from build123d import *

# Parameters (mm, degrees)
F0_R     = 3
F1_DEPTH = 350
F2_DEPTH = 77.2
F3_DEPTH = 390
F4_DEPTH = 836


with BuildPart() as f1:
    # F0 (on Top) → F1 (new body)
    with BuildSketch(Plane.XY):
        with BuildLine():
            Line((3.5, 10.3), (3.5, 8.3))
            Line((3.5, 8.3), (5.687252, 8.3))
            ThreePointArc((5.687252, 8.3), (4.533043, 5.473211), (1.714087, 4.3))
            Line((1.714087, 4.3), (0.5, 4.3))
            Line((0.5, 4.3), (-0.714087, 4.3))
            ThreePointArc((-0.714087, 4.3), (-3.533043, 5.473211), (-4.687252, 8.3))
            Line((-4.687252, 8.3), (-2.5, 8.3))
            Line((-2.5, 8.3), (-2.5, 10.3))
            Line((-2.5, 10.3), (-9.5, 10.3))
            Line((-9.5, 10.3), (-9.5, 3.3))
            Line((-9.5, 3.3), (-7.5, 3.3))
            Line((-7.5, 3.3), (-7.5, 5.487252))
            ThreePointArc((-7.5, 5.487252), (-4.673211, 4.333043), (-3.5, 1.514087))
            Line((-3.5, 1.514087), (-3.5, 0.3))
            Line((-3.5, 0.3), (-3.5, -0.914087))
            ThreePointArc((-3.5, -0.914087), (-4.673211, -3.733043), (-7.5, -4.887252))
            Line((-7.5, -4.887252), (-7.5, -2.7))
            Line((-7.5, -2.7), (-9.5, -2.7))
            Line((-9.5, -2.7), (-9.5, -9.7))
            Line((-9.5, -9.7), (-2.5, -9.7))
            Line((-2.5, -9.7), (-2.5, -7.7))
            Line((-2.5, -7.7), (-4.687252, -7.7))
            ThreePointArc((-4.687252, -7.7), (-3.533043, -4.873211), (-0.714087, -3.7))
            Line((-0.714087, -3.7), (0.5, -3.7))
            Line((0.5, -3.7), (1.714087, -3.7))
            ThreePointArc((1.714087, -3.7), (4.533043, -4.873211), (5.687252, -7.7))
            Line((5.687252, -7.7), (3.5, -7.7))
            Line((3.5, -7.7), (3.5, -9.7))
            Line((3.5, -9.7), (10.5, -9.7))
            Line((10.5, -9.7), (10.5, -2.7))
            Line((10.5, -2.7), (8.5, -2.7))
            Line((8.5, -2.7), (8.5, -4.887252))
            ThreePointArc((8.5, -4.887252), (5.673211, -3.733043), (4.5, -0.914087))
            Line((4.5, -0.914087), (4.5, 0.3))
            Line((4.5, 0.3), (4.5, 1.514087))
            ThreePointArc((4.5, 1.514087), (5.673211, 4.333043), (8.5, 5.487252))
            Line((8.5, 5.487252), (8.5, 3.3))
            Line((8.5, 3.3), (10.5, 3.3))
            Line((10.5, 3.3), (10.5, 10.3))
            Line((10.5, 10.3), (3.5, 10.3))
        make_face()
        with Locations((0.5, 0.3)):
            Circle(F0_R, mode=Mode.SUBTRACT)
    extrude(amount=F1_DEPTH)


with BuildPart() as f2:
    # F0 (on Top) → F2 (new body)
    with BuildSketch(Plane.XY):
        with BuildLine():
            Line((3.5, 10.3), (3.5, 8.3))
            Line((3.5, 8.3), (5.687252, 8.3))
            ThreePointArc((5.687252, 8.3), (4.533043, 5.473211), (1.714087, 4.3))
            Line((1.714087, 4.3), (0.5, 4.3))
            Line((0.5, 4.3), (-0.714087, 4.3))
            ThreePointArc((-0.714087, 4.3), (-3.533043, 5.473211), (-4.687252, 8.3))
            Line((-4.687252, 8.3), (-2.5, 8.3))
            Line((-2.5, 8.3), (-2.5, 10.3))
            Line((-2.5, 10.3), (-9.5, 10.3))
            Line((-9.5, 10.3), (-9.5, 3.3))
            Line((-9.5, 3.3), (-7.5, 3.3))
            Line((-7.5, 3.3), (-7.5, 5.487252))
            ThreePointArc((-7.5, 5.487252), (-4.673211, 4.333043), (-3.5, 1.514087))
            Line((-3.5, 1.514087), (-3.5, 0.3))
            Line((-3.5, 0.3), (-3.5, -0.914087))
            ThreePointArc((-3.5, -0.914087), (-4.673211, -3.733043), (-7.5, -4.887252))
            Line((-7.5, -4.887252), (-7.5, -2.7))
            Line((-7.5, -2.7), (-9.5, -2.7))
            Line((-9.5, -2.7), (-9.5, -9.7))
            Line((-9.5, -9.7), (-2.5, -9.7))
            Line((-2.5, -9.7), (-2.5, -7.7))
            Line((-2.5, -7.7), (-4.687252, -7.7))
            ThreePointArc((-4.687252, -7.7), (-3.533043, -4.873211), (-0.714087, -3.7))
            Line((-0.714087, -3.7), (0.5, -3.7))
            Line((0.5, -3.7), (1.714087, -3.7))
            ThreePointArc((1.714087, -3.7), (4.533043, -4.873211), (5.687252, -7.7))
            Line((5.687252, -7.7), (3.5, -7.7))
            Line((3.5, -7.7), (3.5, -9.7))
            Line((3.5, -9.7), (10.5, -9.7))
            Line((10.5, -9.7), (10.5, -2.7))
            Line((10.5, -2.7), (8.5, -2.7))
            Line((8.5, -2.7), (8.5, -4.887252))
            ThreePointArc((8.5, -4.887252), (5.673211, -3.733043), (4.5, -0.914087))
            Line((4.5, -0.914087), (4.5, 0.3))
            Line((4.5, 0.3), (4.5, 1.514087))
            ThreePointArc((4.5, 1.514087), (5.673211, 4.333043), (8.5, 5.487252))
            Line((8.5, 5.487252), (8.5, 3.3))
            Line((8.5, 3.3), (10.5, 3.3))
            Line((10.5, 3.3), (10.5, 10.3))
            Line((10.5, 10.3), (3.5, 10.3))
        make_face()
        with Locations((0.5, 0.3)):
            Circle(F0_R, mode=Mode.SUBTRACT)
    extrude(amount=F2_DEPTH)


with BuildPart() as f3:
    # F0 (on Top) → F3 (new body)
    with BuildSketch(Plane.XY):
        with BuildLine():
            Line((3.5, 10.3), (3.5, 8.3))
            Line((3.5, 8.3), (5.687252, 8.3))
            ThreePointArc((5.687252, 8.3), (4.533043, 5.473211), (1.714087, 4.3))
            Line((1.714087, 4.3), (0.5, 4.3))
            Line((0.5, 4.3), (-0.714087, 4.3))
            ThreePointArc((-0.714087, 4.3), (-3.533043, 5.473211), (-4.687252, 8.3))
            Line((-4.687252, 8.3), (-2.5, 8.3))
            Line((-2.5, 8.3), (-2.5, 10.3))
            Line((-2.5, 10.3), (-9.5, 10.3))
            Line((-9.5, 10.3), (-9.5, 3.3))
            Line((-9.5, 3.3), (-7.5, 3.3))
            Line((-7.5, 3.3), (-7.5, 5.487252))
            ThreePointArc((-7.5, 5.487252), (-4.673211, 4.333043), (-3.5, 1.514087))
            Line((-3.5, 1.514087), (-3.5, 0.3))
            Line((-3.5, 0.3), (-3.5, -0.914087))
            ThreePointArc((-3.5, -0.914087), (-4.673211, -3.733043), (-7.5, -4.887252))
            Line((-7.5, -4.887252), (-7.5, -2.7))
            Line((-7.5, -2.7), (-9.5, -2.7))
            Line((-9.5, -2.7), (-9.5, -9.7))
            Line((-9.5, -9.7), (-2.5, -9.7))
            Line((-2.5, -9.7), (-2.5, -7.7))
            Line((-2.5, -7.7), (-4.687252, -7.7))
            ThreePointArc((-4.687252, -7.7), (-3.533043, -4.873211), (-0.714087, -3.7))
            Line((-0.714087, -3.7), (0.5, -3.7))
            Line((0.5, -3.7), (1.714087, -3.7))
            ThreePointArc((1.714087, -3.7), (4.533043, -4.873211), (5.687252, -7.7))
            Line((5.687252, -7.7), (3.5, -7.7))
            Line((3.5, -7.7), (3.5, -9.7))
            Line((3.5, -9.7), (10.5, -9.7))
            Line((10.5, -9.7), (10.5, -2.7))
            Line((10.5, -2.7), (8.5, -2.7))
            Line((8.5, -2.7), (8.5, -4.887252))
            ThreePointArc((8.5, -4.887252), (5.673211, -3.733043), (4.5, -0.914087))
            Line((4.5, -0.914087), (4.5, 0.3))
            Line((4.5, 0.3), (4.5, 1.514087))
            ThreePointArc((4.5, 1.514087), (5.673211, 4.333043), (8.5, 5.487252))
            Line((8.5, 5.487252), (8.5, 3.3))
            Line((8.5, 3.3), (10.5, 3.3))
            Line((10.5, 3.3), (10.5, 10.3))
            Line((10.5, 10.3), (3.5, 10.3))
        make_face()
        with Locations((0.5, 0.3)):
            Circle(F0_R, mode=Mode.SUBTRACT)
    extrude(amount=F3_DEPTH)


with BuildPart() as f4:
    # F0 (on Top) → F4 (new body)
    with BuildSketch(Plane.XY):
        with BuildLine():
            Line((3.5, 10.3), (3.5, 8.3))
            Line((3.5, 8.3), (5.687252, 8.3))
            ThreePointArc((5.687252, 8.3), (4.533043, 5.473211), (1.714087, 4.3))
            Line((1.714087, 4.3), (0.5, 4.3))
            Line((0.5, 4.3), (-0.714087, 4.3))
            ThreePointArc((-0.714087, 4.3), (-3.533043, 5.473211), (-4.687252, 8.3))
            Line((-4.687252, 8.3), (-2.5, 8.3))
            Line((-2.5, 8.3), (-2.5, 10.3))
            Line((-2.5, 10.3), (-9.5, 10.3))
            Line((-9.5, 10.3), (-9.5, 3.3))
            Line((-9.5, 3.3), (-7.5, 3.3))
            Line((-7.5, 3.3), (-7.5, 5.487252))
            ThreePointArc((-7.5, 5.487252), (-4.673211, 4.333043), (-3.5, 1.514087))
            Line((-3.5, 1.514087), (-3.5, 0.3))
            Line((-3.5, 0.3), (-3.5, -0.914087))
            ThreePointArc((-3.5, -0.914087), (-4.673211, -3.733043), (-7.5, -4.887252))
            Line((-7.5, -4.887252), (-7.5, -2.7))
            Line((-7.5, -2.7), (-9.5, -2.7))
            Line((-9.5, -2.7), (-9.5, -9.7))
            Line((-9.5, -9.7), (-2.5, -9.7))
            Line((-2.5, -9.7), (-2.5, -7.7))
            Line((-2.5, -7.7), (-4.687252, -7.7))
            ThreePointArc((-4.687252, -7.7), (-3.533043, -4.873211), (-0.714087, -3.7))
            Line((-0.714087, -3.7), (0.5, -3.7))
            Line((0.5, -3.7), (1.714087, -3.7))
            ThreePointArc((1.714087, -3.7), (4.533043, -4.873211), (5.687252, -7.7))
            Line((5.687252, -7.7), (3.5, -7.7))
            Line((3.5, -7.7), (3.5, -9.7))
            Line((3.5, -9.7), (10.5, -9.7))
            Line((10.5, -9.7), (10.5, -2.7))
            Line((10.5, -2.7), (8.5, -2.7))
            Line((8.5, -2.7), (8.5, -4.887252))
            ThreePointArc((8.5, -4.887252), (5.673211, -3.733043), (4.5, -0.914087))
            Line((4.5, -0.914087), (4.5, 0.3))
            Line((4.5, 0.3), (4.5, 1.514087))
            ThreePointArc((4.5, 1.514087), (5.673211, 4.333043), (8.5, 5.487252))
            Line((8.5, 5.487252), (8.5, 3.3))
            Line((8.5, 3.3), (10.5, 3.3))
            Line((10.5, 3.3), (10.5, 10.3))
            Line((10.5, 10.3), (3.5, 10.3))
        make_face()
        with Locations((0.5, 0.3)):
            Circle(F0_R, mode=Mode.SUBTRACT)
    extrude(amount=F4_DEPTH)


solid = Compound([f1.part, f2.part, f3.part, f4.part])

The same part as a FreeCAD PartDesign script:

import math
import FreeCAD as App
import Part
import Sketcher
from FreeCAD import Vector
Q = App.Units.Quantity

doc = App.newDocument("Part")
params = doc.addObject("Spreadsheet::Sheet", "Params")
for row, (alias, value) in enumerate([
    ("sketch1_diameter", "6 mm"),
    ("sketch1_width", "7 mm"),
    ("sketch1_width2", "2 mm"),
    ("pad1_length", "350 mm"),
    ("sketch2_diameter", "6 mm"),
    ("sketch2_width", "7 mm"),
    ("sketch2_width2", "2 mm"),
    ("pad2_length", "77.2 mm"),
    ("sketch3_diameter", "6 mm"),
    ("sketch3_width", "7 mm"),
    ("sketch3_width2", "2 mm"),
    ("pad3_length", "390 mm"),
    ("sketch4_diameter", "6 mm"),
    ("sketch4_width", "7 mm"),
    ("sketch4_width2", "2 mm"),
    ("pad4_length", "836 mm"),
], start=1):
    params.set(f"A{row}", alias)
    params.set(f"B{row}", "=" + value)
    params.setAlias(f"B{row}", alias)

body = doc.addObject("PartDesign::Body", "Body")

sketch1 = body.newObject("Sketcher::SketchObject", "Sketch")
sketch1.AttachmentSupport = (doc.getObject("XY_Plane"), [""])
sketch1.MapMode = "FlatFace"
sketch1.addGeometry([
    Part.LineSegment(Vector(3.5, 10.3, 0), Vector(3.5, 8.3, 0)),
    Part.LineSegment(Vector(3.5, 8.3, 0), Vector(5.687252, 8.3, 0)),
    Part.ArcOfCircle(Part.Circle(Vector(1.714088, 8.273254, 0), Vector(0, 0, 1), 3.973254), math.radians(-90.000017), math.radians(0.385693)),
    Part.LineSegment(Vector(1.714087, 4.3, 0), Vector(-0.714087, 4.3, 0)),
    Part.ArcOfCircle(Part.Circle(Vector(-0.714088, 8.273254, 0), Vector(0, 0, 1), 3.973254), math.radians(179.614307), math.radians(270.000017)),
    Part.LineSegment(Vector(-4.687252, 8.3, 0), Vector(-2.5, 8.3, 0)),
    Part.LineSegment(Vector(-2.5, 8.3, 0), Vector(-2.5, 10.3, 0)),
    Part.LineSegment(Vector(-2.5, 10.3, 0), Vector(-9.5, 10.3, 0)),
    Part.LineSegment(Vector(-9.5, 10.3, 0), Vector(-9.5, 3.3, 0)),
    Part.LineSegment(Vector(-9.5, 3.3, 0), Vector(-7.5, 3.3, 0)),
    Part.LineSegment(Vector(-7.5, 3.3, 0), Vector(-7.5, 5.487252, 0)),
    Part.ArcOfCircle(Part.Circle(Vector(-7.473254, 1.514088, 0), Vector(0, 0, 1), 3.973254), math.radians(-0.000017), math.radians(90.385693)),
    Part.LineSegment(Vector(-3.5, 1.514087, 0), Vector(-3.5, -0.914087, 0)),
    Part.ArcOfCircle(Part.Circle(Vector(-7.473254, -0.914088, 0), Vector(0, 0, 1), 3.973254), math.radians(-90.385693), math.radians(0.000017)),
    Part.LineSegment(Vector(-7.5, -4.887252, 0), Vector(-7.5, -2.7, 0)),
    Part.LineSegment(Vector(-7.5, -2.7, 0), Vector(-9.5, -2.7, 0)),
    Part.LineSegment(Vector(-9.5, -2.7, 0), Vector(-9.5, -9.7, 0)),
    Part.LineSegment(Vector(-9.5, -9.7, 0), Vector(-2.5, -9.7, 0)),
    Part.LineSegment(Vector(-2.5, -9.7, 0), Vector(-2.5, -7.7, 0)),
    Part.LineSegment(Vector(-2.5, -7.7, 0), Vector(-4.687252, -7.7, 0)),
    Part.ArcOfCircle(Part.Circle(Vector(-0.714088, -7.673254, 0), Vector(0, 0, 1), 3.973254), math.radians(89.999983), math.radians(180.385693)),
    Part.LineSegment(Vector(-0.714087, -3.7, 0), Vector(1.714087, -3.7, 0)),
    Part.ArcOfCircle(Part.Circle(Vector(1.714088, -7.673254, 0), Vector(0, 0, 1), 3.973254), math.radians(-0.385693), math.radians(90.000017)),
    Part.LineSegment(Vector(5.687252, -7.7, 0), Vector(3.5, -7.7, 0)),
    Part.LineSegment(Vector(3.5, -7.7, 0), Vector(3.5, -9.7, 0)),
    Part.LineSegment(Vector(3.5, -9.7, 0), Vector(10.5, -9.7, 0)),
    Part.LineSegment(Vector(10.5, -9.7, 0), Vector(10.5, -2.7, 0)),
    Part.LineSegment(Vector(10.5, -2.7, 0), Vector(8.5, -2.7, 0)),
    Part.LineSegment(Vector(8.5, -2.7, 0), Vector(8.5, -4.887252, 0)),
    Part.ArcOfCircle(Part.Circle(Vector(8.473254, -0.914088, 0), Vector(0, 0, 1), 3.973254), math.radians(179.999983), math.radians(270.385693)),
    Part.LineSegment(Vector(4.5, -0.914087, 0), Vector(4.5, 1.514087, 0)),
    Part.ArcOfCircle(Part.Circle(Vector(8.473254, 1.514088, 0), Vector(0, 0, 1), 3.973254), math.radians(89.614307), math.radians(180.000017)),
    Part.LineSegment(Vector(8.5, 5.487252, 0), Vector(8.5, 3.3, 0)),
    Part.LineSegment(Vector(8.5, 3.3, 0), Vector(10.5, 3.3, 0)),
    Part.LineSegment(Vector(10.5, 3.3, 0), Vector(10.5, 10.3, 0)),
    Part.LineSegment(Vector(10.5, 10.3, 0), Vector(3.5, 10.3, 0)),
    Part.Circle(Vector(0.5, 0.3, 0), Vector(0, 0, 1), 3),
], False)
sketch1.addConstraint([
    Sketcher.Constraint("Coincident", 0, 2, 1, 1),
    Sketcher.Constraint("Coincident", 1, 2, 2, 2),
    Sketcher.Constraint("Tangent", 2, 1, 3, 1),
    Sketcher.Constraint("Tangent", 3, 2, 4, 2),
    Sketcher.Constraint("Coincident", 4, 1, 5, 1),
    Sketcher.Constraint("Coincident", 5, 2, 6, 1),
    Sketcher.Constraint("Coincident", 6, 2, 7, 1),
    Sketcher.Constraint("Coincident", 7, 2, 8, 1),
    Sketcher.Constraint("Coincident", 8, 2, 9, 1),
    Sketcher.Constraint("Coincident", 9, 2, 10, 1),
    Sketcher.Constraint("Coincident", 10, 2, 11, 2),
    Sketcher.Constraint("Tangent", 11, 1, 12, 1),
    Sketcher.Constraint("Tangent", 12, 2, 13, 2),
    Sketcher.Constraint("Coincident", 13, 1, 14, 1),
    Sketcher.Constraint("Coincident", 14, 2, 15, 1),
    Sketcher.Constraint("Coincident", 15, 2, 16, 1),
    Sketcher.Constraint("Coincident", 16, 2, 17, 1),
    Sketcher.Constraint("Coincident", 17, 2, 18, 1),
    Sketcher.Constraint("Coincident", 18, 2, 19, 1),
    Sketcher.Constraint("Coincident", 19, 2, 20, 2),
    Sketcher.Constraint("Tangent", 20, 1, 21, 1),
    Sketcher.Constraint("Tangent", 21, 2, 22, 2),
    Sketcher.Constraint("Coincident", 22, 1, 23, 1),
    Sketcher.Constraint("Coincident", 23, 2, 24, 1),
    Sketcher.Constraint("Coincident", 24, 2, 25, 1),
    Sketcher.Constraint("Coincident", 25, 2, 26, 1),
    Sketcher.Constraint("Coincident", 26, 2, 27, 1),
    Sketcher.Constraint("Coincident", 27, 2, 28, 1),
    Sketcher.Constraint("Coincident", 28, 2, 29, 2),
    Sketcher.Constraint("Tangent", 29, 1, 30, 1),
    Sketcher.Constraint("Tangent", 30, 2, 31, 2),
    Sketcher.Constraint("Coincident", 31, 1, 32, 1),
    Sketcher.Constraint("Coincident", 32, 2, 33, 1),
    Sketcher.Constraint("Coincident", 33, 2, 34, 1),
    Sketcher.Constraint("Coincident", 34, 2, 35, 1),
    Sketcher.Constraint("Coincident", 35, 2, 0, 1),
    Sketcher.Constraint("Vertical", 0),
    Sketcher.Constraint("Horizontal", 1),
    Sketcher.Constraint("Horizontal", 3),
    Sketcher.Constraint("Horizontal", 5),
    Sketcher.Constraint("Vertical", 6),
    Sketcher.Constraint("Horizontal", 7),
    Sketcher.Constraint("Vertical", 8),
    Sketcher.Constraint("Horizontal", 9),
    Sketcher.Constraint("Vertical", 10),
    Sketcher.Constraint("Vertical", 12),
    Sketcher.Constraint("Vertical", 14),
    Sketcher.Constraint("Horizontal", 15),
    Sketcher.Constraint("Vertical", 16),
    Sketcher.Constraint("Horizontal", 17),
    Sketcher.Constraint("Vertical", 18),
    Sketcher.Constraint("Horizontal", 19),
    Sketcher.Constraint("Horizontal", 21),
    Sketcher.Constraint("Horizontal", 23),
    Sketcher.Constraint("Vertical", 24),
    Sketcher.Constraint("Horizontal", 25),
    Sketcher.Constraint("Vertical", 26),
    Sketcher.Constraint("Horizontal", 27),
    Sketcher.Constraint("Vertical", 28),
    Sketcher.Constraint("Vertical", 30),
    Sketcher.Constraint("Vertical", 32),
    Sketcher.Constraint("Horizontal", 33),
    Sketcher.Constraint("Vertical", 34),
    Sketcher.Constraint("Horizontal", 35),
    Sketcher.Constraint("Equal", 2, 4),
    Sketcher.Constraint("Equal", 4, 11),
    Sketcher.Constraint("Equal", 11, 13),
    Sketcher.Constraint("Equal", 13, 20),
    Sketcher.Constraint("Equal", 20, 22),
    Sketcher.Constraint("Equal", 22, 29),
    Sketcher.Constraint("Equal", 29, 31),
    Sketcher.Constraint("Horizontal", 13, 3, 29, 3),
    Sketcher.Constraint("Horizontal", 11, 3, 31, 3),
    Sketcher.Constraint("Horizontal", 1, 2, 4, 1),
    Sketcher.Constraint("Horizontal", 19, 2, 22, 1),
    Sketcher.Constraint("Horizontal", 17, 2, 24, 2),
    Sketcher.Constraint("Horizontal", 15, 2, 26, 2),
    Sketcher.Constraint("Horizontal", 13, 1, 28, 2),
    Sketcher.Constraint("Horizontal", 10, 2, 31, 1),
    Sketcher.Constraint("Horizontal", 9, 2, 32, 2),
    Sketcher.Constraint("Horizontal", 7, 2, 34, 2),
    Sketcher.Constraint("Vertical", 4, 3, 20, 3),
    Sketcher.Constraint("Vertical", 2, 3, 22, 3),
    Sketcher.Constraint("Vertical", 10, 2, 13, 1),
    Sketcher.Constraint("Vertical", 8, 2, 15, 2),
    Sketcher.Constraint("Vertical", 6, 2, 17, 2),
    Sketcher.Constraint("Vertical", 4, 1, 19, 2),
    Sketcher.Constraint("Vertical", 0, 2, 23, 2),
    Sketcher.Constraint("Vertical", 26, 2, 33, 2),
    Sketcher.Constraint("Equal", 1, 5),
    Sketcher.Constraint("Equal", 17, 25),
    Sketcher.Constraint("Equal", 15, 27),
    Sketcher.Constraint("Equal", 33, 0),
    Sketcher.Constraint("Equal", 35, 8),
    Sketcher.Constraint("Equal", 23, 10),
    Sketcher.Constraint("Equal", 21, 12),
    Sketcher.Constraint("Equal", 10, 14),
    Sketcher.Constraint("Equal", 8, 16),
    Sketcher.Constraint("Equal", 6, 18),
    Sketcher.Constraint("Diameter", 36, Q("6 mm")),
    Sketcher.Constraint("DistanceX", 7, 2, 7, 1, Q("7 mm")),
    Sketcher.Constraint("DistanceX", 9, 1, 9, 2, Q("2 mm")),
    Sketcher.Constraint("DistanceX", 36, 3, 0, 2, Q("3 mm")),
    Sketcher.Constraint("DistanceY", 36, 3, 0, 2, Q("8 mm")),
    Sketcher.Constraint("DistanceY", 36, 3, 2, 1, Q("4 mm")),
    Sketcher.Constraint("DistanceX", 11, 1, 36, 3, Q("4 mm")),
    Sketcher.Constraint("DistanceX", 9, 2, 11, 1, Q("4 mm")),
    Sketcher.Constraint("DistanceX", -1, 1, 36, 3, Q("0.5 mm")),
    Sketcher.Constraint("DistanceY", -1, 1, 36, 3, Q("0.3 mm")),
    Sketcher.Constraint("Radius", 2, Q("3.973254 mm")),
    Sketcher.Constraint("DistanceX", 1, 2, 31, 3, Q("2.786002 mm")),
])
sketch1.setExpression("Constraints[99]", "Params.sketch1_diameter")
sketch1.setExpression("Constraints[100]", "Params.sketch1_width")
sketch1.setExpression("Constraints[101]", "Params.sketch1_width2")
pad1 = body.newObject("PartDesign::Pad", "Pad")
pad1.Profile = sketch1
pad1.setExpression("Length", "Params.pad1_length")
body2 = doc.addObject("PartDesign::Body", "Body001")

sketch2 = body2.newObject("Sketcher::SketchObject", "Sketch001")
sketch2.AttachmentSupport = (doc.getObject("XY_Plane001"), [""])
sketch2.MapMode = "FlatFace"
sketch2.addGeometry([
    Part.LineSegment(Vector(3.5, 10.3, 0), Vector(3.5, 8.3, 0)),
    Part.LineSegment(Vector(3.5, 8.3, 0), Vector(5.687252, 8.3, 0)),
    Part.ArcOfCircle(Part.Circle(Vector(1.714088, 8.273254, 0), Vector(0, 0, 1), 3.973254), math.radians(-90.000017), math.radians(0.385693)),
    Part.LineSegment(Vector(1.714087, 4.3, 0), Vector(-0.714087, 4.3, 0)),
    Part.ArcOfCircle(Part.Circle(Vector(-0.714088, 8.273254, 0), Vector(0, 0, 1), 3.973254), math.radians(179.614307), math.radians(270.000017)),
    Part.LineSegment(Vector(-4.687252, 8.3, 0), Vector(-2.5, 8.3, 0)),
    Part.LineSegment(Vector(-2.5, 8.3, 0), Vector(-2.5, 10.3, 0)),
    Part.LineSegment(Vector(-2.5, 10.3, 0), Vector(-9.5, 10.3, 0)),
    Part.LineSegment(Vector(-9.5, 10.3, 0), Vector(-9.5, 3.3, 0)),
    Part.LineSegment(Vector(-9.5, 3.3, 0), Vector(-7.5, 3.3, 0)),
    Part.LineSegment(Vector(-7.5, 3.3, 0), Vector(-7.5, 5.487252, 0)),
    Part.ArcOfCircle(Part.Circle(Vector(-7.473254, 1.514088, 0), Vector(0, 0, 1), 3.973254), math.radians(-0.000017), math.radians(90.385693)),
    Part.LineSegment(Vector(-3.5, 1.514087, 0), Vector(-3.5, -0.914087, 0)),
    Part.ArcOfCircle(Part.Circle(Vector(-7.473254, -0.914088, 0), Vector(0, 0, 1), 3.973254), math.radians(-90.385693), math.radians(0.000017)),
    Part.LineSegment(Vector(-7.5, -4.887252, 0), Vector(-7.5, -2.7, 0)),
    Part.LineSegment(Vector(-7.5, -2.7, 0), Vector(-9.5, -2.7, 0)),
    Part.LineSegment(Vector(-9.5, -2.7, 0), Vector(-9.5, -9.7, 0)),
    Part.LineSegment(Vector(-9.5, -9.7, 0), Vector(-2.5, -9.7, 0)),
    Part.LineSegment(Vector(-2.5, -9.7, 0), Vector(-2.5, -7.7, 0)),
    Part.LineSegment(Vector(-2.5, -7.7, 0), Vector(-4.687252, -7.7, 0)),
    Part.ArcOfCircle(Part.Circle(Vector(-0.714088, -7.673254, 0), Vector(0, 0, 1), 3.973254), math.radians(89.999983), math.radians(180.385693)),
    Part.LineSegment(Vector(-0.714087, -3.7, 0), Vector(1.714087, -3.7, 0)),
    Part.ArcOfCircle(Part.Circle(Vector(1.714088, -7.673254, 0), Vector(0, 0, 1), 3.973254), math.radians(-0.385693), math.radians(90.000017)),
    Part.LineSegment(Vector(5.687252, -7.7, 0), Vector(3.5, -7.7, 0)),
    Part.LineSegment(Vector(3.5, -7.7, 0), Vector(3.5, -9.7, 0)),
    Part.LineSegment(Vector(3.5, -9.7, 0), Vector(10.5, -9.7, 0)),
    Part.LineSegment(Vector(10.5, -9.7, 0), Vector(10.5, -2.7, 0)),
    Part.LineSegment(Vector(10.5, -2.7, 0), Vector(8.5, -2.7, 0)),
    Part.LineSegment(Vector(8.5, -2.7, 0), Vector(8.5, -4.887252, 0)),
    Part.ArcOfCircle(Part.Circle(Vector(8.473254, -0.914088, 0), Vector(0, 0, 1), 3.973254), math.radians(179.999983), math.radians(270.385693)),
    Part.LineSegment(Vector(4.5, -0.914087, 0), Vector(4.5, 1.514087, 0)),
    Part.ArcOfCircle(Part.Circle(Vector(8.473254, 1.514088, 0), Vector(0, 0, 1), 3.973254), math.radians(89.614307), math.radians(180.000017)),
    Part.LineSegment(Vector(8.5, 5.487252, 0), Vector(8.5, 3.3, 0)),
    Part.LineSegment(Vector(8.5, 3.3, 0), Vector(10.5, 3.3, 0)),
    Part.LineSegment(Vector(10.5, 3.3, 0), Vector(10.5, 10.3, 0)),
    Part.LineSegment(Vector(10.5, 10.3, 0), Vector(3.5, 10.3, 0)),
    Part.Circle(Vector(0.5, 0.3, 0), Vector(0, 0, 1), 3),
], False)
sketch2.addConstraint([
    Sketcher.Constraint("Coincident", 0, 2, 1, 1),
    Sketcher.Constraint("Coincident", 1, 2, 2, 2),
    Sketcher.Constraint("Tangent", 2, 1, 3, 1),
    Sketcher.Constraint("Tangent", 3, 2, 4, 2),
    Sketcher.Constraint("Coincident", 4, 1, 5, 1),
    Sketcher.Constraint("Coincident", 5, 2, 6, 1),
    Sketcher.Constraint("Coincident", 6, 2, 7, 1),
    Sketcher.Constraint("Coincident", 7, 2, 8, 1),
    Sketcher.Constraint("Coincident", 8, 2, 9, 1),
    Sketcher.Constraint("Coincident", 9, 2, 10, 1),
    Sketcher.Constraint("Coincident", 10, 2, 11, 2),
    Sketcher.Constraint("Tangent", 11, 1, 12, 1),
    Sketcher.Constraint("Tangent", 12, 2, 13, 2),
    Sketcher.Constraint("Coincident", 13, 1, 14, 1),
    Sketcher.Constraint("Coincident", 14, 2, 15, 1),
    Sketcher.Constraint("Coincident", 15, 2, 16, 1),
    Sketcher.Constraint("Coincident", 16, 2, 17, 1),
    Sketcher.Constraint("Coincident", 17, 2, 18, 1),
    Sketcher.Constraint("Coincident", 18, 2, 19, 1),
    Sketcher.Constraint("Coincident", 19, 2, 20, 2),
    Sketcher.Constraint("Tangent", 20, 1, 21, 1),
    Sketcher.Constraint("Tangent", 21, 2, 22, 2),
    Sketcher.Constraint("Coincident", 22, 1, 23, 1),
    Sketcher.Constraint("Coincident", 23, 2, 24, 1),
    Sketcher.Constraint("Coincident", 24, 2, 25, 1),
    Sketcher.Constraint("Coincident", 25, 2, 26, 1),
    Sketcher.Constraint("Coincident", 26, 2, 27, 1),
    Sketcher.Constraint("Coincident", 27, 2, 28, 1),
    Sketcher.Constraint("Coincident", 28, 2, 29, 2),
    Sketcher.Constraint("Tangent", 29, 1, 30, 1),
    Sketcher.Constraint("Tangent", 30, 2, 31, 2),
    Sketcher.Constraint("Coincident", 31, 1, 32, 1),
    Sketcher.Constraint("Coincident", 32, 2, 33, 1),
    Sketcher.Constraint("Coincident", 33, 2, 34, 1),
    Sketcher.Constraint("Coincident", 34, 2, 35, 1),
    Sketcher.Constraint("Coincident", 35, 2, 0, 1),
    Sketcher.Constraint("Vertical", 0),
    Sketcher.Constraint("Horizontal", 1),
    Sketcher.Constraint("Horizontal", 3),
    Sketcher.Constraint("Horizontal", 5),
    Sketcher.Constraint("Vertical", 6),
    Sketcher.Constraint("Horizontal", 7),
    Sketcher.Constraint("Vertical", 8),
    Sketcher.Constraint("Horizontal", 9),
    Sketcher.Constraint("Vertical", 10),
    Sketcher.Constraint("Vertical", 12),
    Sketcher.Constraint("Vertical", 14),
    Sketcher.Constraint("Horizontal", 15),
    Sketcher.Constraint("Vertical", 16),
    Sketcher.Constraint("Horizontal", 17),
    Sketcher.Constraint("Vertical", 18),
    Sketcher.Constraint("Horizontal", 19),
    Sketcher.Constraint("Horizontal", 21),
    Sketcher.Constraint("Horizontal", 23),
    Sketcher.Constraint("Vertical", 24),
    Sketcher.Constraint("Horizontal", 25),
    Sketcher.Constraint("Vertical", 26),
    Sketcher.Constraint("Horizontal", 27),
    Sketcher.Constraint("Vertical", 28),
    Sketcher.Constraint("Vertical", 30),
    Sketcher.Constraint("Vertical", 32),
    Sketcher.Constraint("Horizontal", 33),
    Sketcher.Constraint("Vertical", 34),
    Sketcher.Constraint("Horizontal", 35),
    Sketcher.Constraint("Equal", 2, 4),
    Sketcher.Constraint("Equal", 4, 11),
    Sketcher.Constraint("Equal", 11, 13),
    Sketcher.Constraint("Equal", 13, 20),
    Sketcher.Constraint("Equal", 20, 22),
    Sketcher.Constraint("Equal", 22, 29),
    Sketcher.Constraint("Equal", 29, 31),
    Sketcher.Constraint("Horizontal", 13, 3, 29, 3),
    Sketcher.Constraint("Horizontal", 11, 3, 31, 3),
    Sketcher.Constraint("Horizontal", 1, 2, 4, 1),
    Sketcher.Constraint("Horizontal", 19, 2, 22, 1),
    Sketcher.Constraint("Horizontal", 17, 2, 24, 2),
    Sketcher.Constraint("Horizontal", 15, 2, 26, 2),
    Sketcher.Constraint("Horizontal", 13, 1, 28, 2),
    Sketcher.Constraint("Horizontal", 10, 2, 31, 1),
    Sketcher.Constraint("Horizontal", 9, 2, 32, 2),
    Sketcher.Constraint("Horizontal", 7, 2, 34, 2),
    Sketcher.Constraint("Vertical", 4, 3, 20, 3),
    Sketcher.Constraint("Vertical", 2, 3, 22, 3),
    Sketcher.Constraint("Vertical", 10, 2, 13, 1),
    Sketcher.Constraint("Vertical", 8, 2, 15, 2),
    Sketcher.Constraint("Vertical", 6, 2, 17, 2),
    Sketcher.Constraint("Vertical", 4, 1, 19, 2),
    Sketcher.Constraint("Vertical", 0, 2, 23, 2),
    Sketcher.Constraint("Vertical", 26, 2, 33, 2),
    Sketcher.Constraint("Equal", 1, 5),
    Sketcher.Constraint("Equal", 17, 25),
    Sketcher.Constraint("Equal", 15, 27),
    Sketcher.Constraint("Equal", 33, 0),
    Sketcher.Constraint("Equal", 35, 8),
    Sketcher.Constraint("Equal", 23, 10),
    Sketcher.Constraint("Equal", 21, 12),
    Sketcher.Constraint("Equal", 10, 14),
    Sketcher.Constraint("Equal", 8, 16),
    Sketcher.Constraint("Equal", 6, 18),
    Sketcher.Constraint("Diameter", 36, Q("6 mm")),
    Sketcher.Constraint("DistanceX", 7, 2, 7, 1, Q("7 mm")),
    Sketcher.Constraint("DistanceX", 9, 1, 9, 2, Q("2 mm")),
    Sketcher.Constraint("DistanceX", 36, 3, 0, 2, Q("3 mm")),
    Sketcher.Constraint("DistanceY", 36, 3, 0, 2, Q("8 mm")),
    Sketcher.Constraint("DistanceY", 36, 3, 2, 1, Q("4 mm")),
    Sketcher.Constraint("DistanceX", 11, 1, 36, 3, Q("4 mm")),
    Sketcher.Constraint("DistanceX", 9, 2, 11, 1, Q("4 mm")),
    Sketcher.Constraint("DistanceX", -1, 1, 36, 3, Q("0.5 mm")),
    Sketcher.Constraint("DistanceY", -1, 1, 36, 3, Q("0.3 mm")),
    Sketcher.Constraint("Radius", 2, Q("3.973254 mm")),
    Sketcher.Constraint("DistanceX", 1, 2, 31, 3, Q("2.786002 mm")),
])
sketch2.setExpression("Constraints[99]", "Params.sketch2_diameter")
sketch2.setExpression("Constraints[100]", "Params.sketch2_width")
sketch2.setExpression("Constraints[101]", "Params.sketch2_width2")
pad2 = body2.newObject("PartDesign::Pad", "Pad001")
pad2.Profile = sketch2
pad2.setExpression("Length", "Params.pad2_length")
body3 = doc.addObject("PartDesign::Body", "Body002")

sketch3 = body3.newObject("Sketcher::SketchObject", "Sketch002")
sketch3.AttachmentSupport = (doc.getObject("XY_Plane002"), [""])
sketch3.MapMode = "FlatFace"
sketch3.addGeometry([
    Part.LineSegment(Vector(3.5, 10.3, 0), Vector(3.5, 8.3, 0)),
    Part.LineSegment(Vector(3.5, 8.3, 0), Vector(5.687252, 8.3, 0)),
    Part.ArcOfCircle(Part.Circle(Vector(1.714088, 8.273254, 0), Vector(0, 0, 1), 3.973254), math.radians(-90.000017), math.radians(0.385693)),
    Part.LineSegment(Vector(1.714087, 4.3, 0), Vector(-0.714087, 4.3, 0)),
    Part.ArcOfCircle(Part.Circle(Vector(-0.714088, 8.273254, 0), Vector(0, 0, 1), 3.973254), math.radians(179.614307), math.radians(270.000017)),
    Part.LineSegment(Vector(-4.687252, 8.3, 0), Vector(-2.5, 8.3, 0)),
    Part.LineSegment(Vector(-2.5, 8.3, 0), Vector(-2.5, 10.3, 0)),
    Part.LineSegment(Vector(-2.5, 10.3, 0), Vector(-9.5, 10.3, 0)),
    Part.LineSegment(Vector(-9.5, 10.3, 0), Vector(-9.5, 3.3, 0)),
    Part.LineSegment(Vector(-9.5, 3.3, 0), Vector(-7.5, 3.3, 0)),
    Part.LineSegment(Vector(-7.5, 3.3, 0), Vector(-7.5, 5.487252, 0)),
    Part.ArcOfCircle(Part.Circle(Vector(-7.473254, 1.514088, 0), Vector(0, 0, 1), 3.973254), math.radians(-0.000017), math.radians(90.385693)),
    Part.LineSegment(Vector(-3.5, 1.514087, 0), Vector(-3.5, -0.914087, 0)),
    Part.ArcOfCircle(Part.Circle(Vector(-7.473254, -0.914088, 0), Vector(0, 0, 1), 3.973254), math.radians(-90.385693), math.radians(0.000017)),
    Part.LineSegment(Vector(-7.5, -4.887252, 0), Vector(-7.5, -2.7, 0)),
    Part.LineSegment(Vector(-7.5, -2.7, 0), Vector(-9.5, -2.7, 0)),
    Part.LineSegment(Vector(-9.5, -2.7, 0), Vector(-9.5, -9.7, 0)),
    Part.LineSegment(Vector(-9.5, -9.7, 0), Vector(-2.5, -9.7, 0)),
    Part.LineSegment(Vector(-2.5, -9.7, 0), Vector(-2.5, -7.7, 0)),
    Part.LineSegment(Vector(-2.5, -7.7, 0), Vector(-4.687252, -7.7, 0)),
    Part.ArcOfCircle(Part.Circle(Vector(-0.714088, -7.673254, 0), Vector(0, 0, 1), 3.973254), math.radians(89.999983), math.radians(180.385693)),
    Part.LineSegment(Vector(-0.714087, -3.7, 0), Vector(1.714087, -3.7, 0)),
    Part.ArcOfCircle(Part.Circle(Vector(1.714088, -7.673254, 0), Vector(0, 0, 1), 3.973254), math.radians(-0.385693), math.radians(90.000017)),
    Part.LineSegment(Vector(5.687252, -7.7, 0), Vector(3.5, -7.7, 0)),
    Part.LineSegment(Vector(3.5, -7.7, 0), Vector(3.5, -9.7, 0)),
    Part.LineSegment(Vector(3.5, -9.7, 0), Vector(10.5, -9.7, 0)),
    Part.LineSegment(Vector(10.5, -9.7, 0), Vector(10.5, -2.7, 0)),
    Part.LineSegment(Vector(10.5, -2.7, 0), Vector(8.5, -2.7, 0)),
    Part.LineSegment(Vector(8.5, -2.7, 0), Vector(8.5, -4.887252, 0)),
    Part.ArcOfCircle(Part.Circle(Vector(8.473254, -0.914088, 0), Vector(0, 0, 1), 3.973254), math.radians(179.999983), math.radians(270.385693)),
    Part.LineSegment(Vector(4.5, -0.914087, 0), Vector(4.5, 1.514087, 0)),
    Part.ArcOfCircle(Part.Circle(Vector(8.473254, 1.514088, 0), Vector(0, 0, 1), 3.973254), math.radians(89.614307), math.radians(180.000017)),
    Part.LineSegment(Vector(8.5, 5.487252, 0), Vector(8.5, 3.3, 0)),
    Part.LineSegment(Vector(8.5, 3.3, 0), Vector(10.5, 3.3, 0)),
    Part.LineSegment(Vector(10.5, 3.3, 0), Vector(10.5, 10.3, 0)),
    Part.LineSegment(Vector(10.5, 10.3, 0), Vector(3.5, 10.3, 0)),
    Part.Circle(Vector(0.5, 0.3, 0), Vector(0, 0, 1), 3),
], False)
sketch3.addConstraint([
    Sketcher.Constraint("Coincident", 0, 2, 1, 1),
    Sketcher.Constraint("Coincident", 1, 2, 2, 2),
    Sketcher.Constraint("Tangent", 2, 1, 3, 1),
    Sketcher.Constraint("Tangent", 3, 2, 4, 2),
    Sketcher.Constraint("Coincident", 4, 1, 5, 1),
    Sketcher.Constraint("Coincident", 5, 2, 6, 1),
    Sketcher.Constraint("Coincident", 6, 2, 7, 1),
    Sketcher.Constraint("Coincident", 7, 2, 8, 1),
    Sketcher.Constraint("Coincident", 8, 2, 9, 1),
    Sketcher.Constraint("Coincident", 9, 2, 10, 1),
    Sketcher.Constraint("Coincident", 10, 2, 11, 2),
    Sketcher.Constraint("Tangent", 11, 1, 12, 1),
    Sketcher.Constraint("Tangent", 12, 2, 13, 2),
    Sketcher.Constraint("Coincident", 13, 1, 14, 1),
    Sketcher.Constraint("Coincident", 14, 2, 15, 1),
    Sketcher.Constraint("Coincident", 15, 2, 16, 1),
    Sketcher.Constraint("Coincident", 16, 2, 17, 1),
    Sketcher.Constraint("Coincident", 17, 2, 18, 1),
    Sketcher.Constraint("Coincident", 18, 2, 19, 1),
    Sketcher.Constraint("Coincident", 19, 2, 20, 2),
    Sketcher.Constraint("Tangent", 20, 1, 21, 1),
    Sketcher.Constraint("Tangent", 21, 2, 22, 2),
    Sketcher.Constraint("Coincident", 22, 1, 23, 1),
    Sketcher.Constraint("Coincident", 23, 2, 24, 1),
    Sketcher.Constraint("Coincident", 24, 2, 25, 1),
    Sketcher.Constraint("Coincident", 25, 2, 26, 1),
    Sketcher.Constraint("Coincident", 26, 2, 27, 1),
    Sketcher.Constraint("Coincident", 27, 2, 28, 1),
    Sketcher.Constraint("Coincident", 28, 2, 29, 2),
    Sketcher.Constraint("Tangent", 29, 1, 30, 1),
    Sketcher.Constraint("Tangent", 30, 2, 31, 2),
    Sketcher.Constraint("Coincident", 31, 1, 32, 1),
    Sketcher.Constraint("Coincident", 32, 2, 33, 1),
    Sketcher.Constraint("Coincident", 33, 2, 34, 1),
    Sketcher.Constraint("Coincident", 34, 2, 35, 1),
    Sketcher.Constraint("Coincident", 35, 2, 0, 1),
    Sketcher.Constraint("Vertical", 0),
    Sketcher.Constraint("Horizontal", 1),
    Sketcher.Constraint("Horizontal", 3),
    Sketcher.Constraint("Horizontal", 5),
    Sketcher.Constraint("Vertical", 6),
    Sketcher.Constraint("Horizontal", 7),
    Sketcher.Constraint("Vertical", 8),
    Sketcher.Constraint("Horizontal", 9),
    Sketcher.Constraint("Vertical", 10),
    Sketcher.Constraint("Vertical", 12),
    Sketcher.Constraint("Vertical", 14),
    Sketcher.Constraint("Horizontal", 15),
    Sketcher.Constraint("Vertical", 16),
    Sketcher.Constraint("Horizontal", 17),
    Sketcher.Constraint("Vertical", 18),
    Sketcher.Constraint("Horizontal", 19),
    Sketcher.Constraint("Horizontal", 21),
    Sketcher.Constraint("Horizontal", 23),
    Sketcher.Constraint("Vertical", 24),
    Sketcher.Constraint("Horizontal", 25),
    Sketcher.Constraint("Vertical", 26),
    Sketcher.Constraint("Horizontal", 27),
    Sketcher.Constraint("Vertical", 28),
    Sketcher.Constraint("Vertical", 30),
    Sketcher.Constraint("Vertical", 32),
    Sketcher.Constraint("Horizontal", 33),
    Sketcher.Constraint("Vertical", 34),
    Sketcher.Constraint("Horizontal", 35),
    Sketcher.Constraint("Equal", 2, 4),
    Sketcher.Constraint("Equal", 4, 11),
    Sketcher.Constraint("Equal", 11, 13),
    Sketcher.Constraint("Equal", 13, 20),
    Sketcher.Constraint("Equal", 20, 22),
    Sketcher.Constraint("Equal", 22, 29),
    Sketcher.Constraint("Equal", 29, 31),
    Sketcher.Constraint("Horizontal", 13, 3, 29, 3),
    Sketcher.Constraint("Horizontal", 11, 3, 31, 3),
    Sketcher.Constraint("Horizontal", 1, 2, 4, 1),
    Sketcher.Constraint("Horizontal", 19, 2, 22, 1),
    Sketcher.Constraint("Horizontal", 17, 2, 24, 2),
    Sketcher.Constraint("Horizontal", 15, 2, 26, 2),
    Sketcher.Constraint("Horizontal", 13, 1, 28, 2),
    Sketcher.Constraint("Horizontal", 10, 2, 31, 1),
    Sketcher.Constraint("Horizontal", 9, 2, 32, 2),
    Sketcher.Constraint("Horizontal", 7, 2, 34, 2),
    Sketcher.Constraint("Vertical", 4, 3, 20, 3),
    Sketcher.Constraint("Vertical", 2, 3, 22, 3),
    Sketcher.Constraint("Vertical", 10, 2, 13, 1),
    Sketcher.Constraint("Vertical", 8, 2, 15, 2),
    Sketcher.Constraint("Vertical", 6, 2, 17, 2),
    Sketcher.Constraint("Vertical", 4, 1, 19, 2),
    Sketcher.Constraint("Vertical", 0, 2, 23, 2),
    Sketcher.Constraint("Vertical", 26, 2, 33, 2),
    Sketcher.Constraint("Equal", 1, 5),
    Sketcher.Constraint("Equal", 17, 25),
    Sketcher.Constraint("Equal", 15, 27),
    Sketcher.Constraint("Equal", 33, 0),
    Sketcher.Constraint("Equal", 35, 8),
    Sketcher.Constraint("Equal", 23, 10),
    Sketcher.Constraint("Equal", 21, 12),
    Sketcher.Constraint("Equal", 10, 14),
    Sketcher.Constraint("Equal", 8, 16),
    Sketcher.Constraint("Equal", 6, 18),
    Sketcher.Constraint("Diameter", 36, Q("6 mm")),
    Sketcher.Constraint("DistanceX", 7, 2, 7, 1, Q("7 mm")),
    Sketcher.Constraint("DistanceX", 9, 1, 9, 2, Q("2 mm")),
    Sketcher.Constraint("DistanceX", 36, 3, 0, 2, Q("3 mm")),
    Sketcher.Constraint("DistanceY", 36, 3, 0, 2, Q("8 mm")),
    Sketcher.Constraint("DistanceY", 36, 3, 2, 1, Q("4 mm")),
    Sketcher.Constraint("DistanceX", 11, 1, 36, 3, Q("4 mm")),
    Sketcher.Constraint("DistanceX", 9, 2, 11, 1, Q("4 mm")),
    Sketcher.Constraint("DistanceX", -1, 1, 36, 3, Q("0.5 mm")),
    Sketcher.Constraint("DistanceY", -1, 1, 36, 3, Q("0.3 mm")),
    Sketcher.Constraint("Radius", 2, Q("3.973254 mm")),
    Sketcher.Constraint("DistanceX", 1, 2, 31, 3, Q("2.786002 mm")),
])
sketch3.setExpression("Constraints[99]", "Params.sketch3_diameter")
sketch3.setExpression("Constraints[100]", "Params.sketch3_width")
sketch3.setExpression("Constraints[101]", "Params.sketch3_width2")
pad3 = body3.newObject("PartDesign::Pad", "Pad002")
pad3.Profile = sketch3
pad3.setExpression("Length", "Params.pad3_length")
body4 = doc.addObject("PartDesign::Body", "Body003")

sketch4 = body4.newObject("Sketcher::SketchObject", "Sketch003")
sketch4.AttachmentSupport = (doc.getObject("XY_Plane003"), [""])
sketch4.MapMode = "FlatFace"
sketch4.addGeometry([
    Part.LineSegment(Vector(3.5, 10.3, 0), Vector(3.5, 8.3, 0)),
    Part.LineSegment(Vector(3.5, 8.3, 0), Vector(5.687252, 8.3, 0)),
    Part.ArcOfCircle(Part.Circle(Vector(1.714088, 8.273254, 0), Vector(0, 0, 1), 3.973254), math.radians(-90.000017), math.radians(0.385693)),
    Part.LineSegment(Vector(1.714087, 4.3, 0), Vector(-0.714087, 4.3, 0)),
    Part.ArcOfCircle(Part.Circle(Vector(-0.714088, 8.273254, 0), Vector(0, 0, 1), 3.973254), math.radians(179.614307), math.radians(270.000017)),
    Part.LineSegment(Vector(-4.687252, 8.3, 0), Vector(-2.5, 8.3, 0)),
    Part.LineSegment(Vector(-2.5, 8.3, 0), Vector(-2.5, 10.3, 0)),
    Part.LineSegment(Vector(-2.5, 10.3, 0), Vector(-9.5, 10.3, 0)),
    Part.LineSegment(Vector(-9.5, 10.3, 0), Vector(-9.5, 3.3, 0)),
    Part.LineSegment(Vector(-9.5, 3.3, 0), Vector(-7.5, 3.3, 0)),
    Part.LineSegment(Vector(-7.5, 3.3, 0), Vector(-7.5, 5.487252, 0)),
    Part.ArcOfCircle(Part.Circle(Vector(-7.473254, 1.514088, 0), Vector(0, 0, 1), 3.973254), math.radians(-0.000017), math.radians(90.385693)),
    Part.LineSegment(Vector(-3.5, 1.514087, 0), Vector(-3.5, -0.914087, 0)),
    Part.ArcOfCircle(Part.Circle(Vector(-7.473254, -0.914088, 0), Vector(0, 0, 1), 3.973254), math.radians(-90.385693), math.radians(0.000017)),
    Part.LineSegment(Vector(-7.5, -4.887252, 0), Vector(-7.5, -2.7, 0)),
    Part.LineSegment(Vector(-7.5, -2.7, 0), Vector(-9.5, -2.7, 0)),
    Part.LineSegment(Vector(-9.5, -2.7, 0), Vector(-9.5, -9.7, 0)),
    Part.LineSegment(Vector(-9.5, -9.7, 0), Vector(-2.5, -9.7, 0)),
    Part.LineSegment(Vector(-2.5, -9.7, 0), Vector(-2.5, -7.7, 0)),
    Part.LineSegment(Vector(-2.5, -7.7, 0), Vector(-4.687252, -7.7, 0)),
    Part.ArcOfCircle(Part.Circle(Vector(-0.714088, -7.673254, 0), Vector(0, 0, 1), 3.973254), math.radians(89.999983), math.radians(180.385693)),
    Part.LineSegment(Vector(-0.714087, -3.7, 0), Vector(1.714087, -3.7, 0)),
    Part.ArcOfCircle(Part.Circle(Vector(1.714088, -7.673254, 0), Vector(0, 0, 1), 3.973254), math.radians(-0.385693), math.radians(90.000017)),
    Part.LineSegment(Vector(5.687252, -7.7, 0), Vector(3.5, -7.7, 0)),
    Part.LineSegment(Vector(3.5, -7.7, 0), Vector(3.5, -9.7, 0)),
    Part.LineSegment(Vector(3.5, -9.7, 0), Vector(10.5, -9.7, 0)),
    Part.LineSegment(Vector(10.5, -9.7, 0), Vector(10.5, -2.7, 0)),
    Part.LineSegment(Vector(10.5, -2.7, 0), Vector(8.5, -2.7, 0)),
    Part.LineSegment(Vector(8.5, -2.7, 0), Vector(8.5, -4.887252, 0)),
    Part.ArcOfCircle(Part.Circle(Vector(8.473254, -0.914088, 0), Vector(0, 0, 1), 3.973254), math.radians(179.999983), math.radians(270.385693)),
    Part.LineSegment(Vector(4.5, -0.914087, 0), Vector(4.5, 1.514087, 0)),
    Part.ArcOfCircle(Part.Circle(Vector(8.473254, 1.514088, 0), Vector(0, 0, 1), 3.973254), math.radians(89.614307), math.radians(180.000017)),
    Part.LineSegment(Vector(8.5, 5.487252, 0), Vector(8.5, 3.3, 0)),
    Part.LineSegment(Vector(8.5, 3.3, 0), Vector(10.5, 3.3, 0)),
    Part.LineSegment(Vector(10.5, 3.3, 0), Vector(10.5, 10.3, 0)),
    Part.LineSegment(Vector(10.5, 10.3, 0), Vector(3.5, 10.3, 0)),
    Part.Circle(Vector(0.5, 0.3, 0), Vector(0, 0, 1), 3),
], False)
sketch4.addConstraint([
    Sketcher.Constraint("Coincident", 0, 2, 1, 1),
    Sketcher.Constraint("Coincident", 1, 2, 2, 2),
    Sketcher.Constraint("Tangent", 2, 1, 3, 1),
    Sketcher.Constraint("Tangent", 3, 2, 4, 2),
    Sketcher.Constraint("Coincident", 4, 1, 5, 1),
    Sketcher.Constraint("Coincident", 5, 2, 6, 1),
    Sketcher.Constraint("Coincident", 6, 2, 7, 1),
    Sketcher.Constraint("Coincident", 7, 2, 8, 1),
    Sketcher.Constraint("Coincident", 8, 2, 9, 1),
    Sketcher.Constraint("Coincident", 9, 2, 10, 1),
    Sketcher.Constraint("Coincident", 10, 2, 11, 2),
    Sketcher.Constraint("Tangent", 11, 1, 12, 1),
    Sketcher.Constraint("Tangent", 12, 2, 13, 2),
    Sketcher.Constraint("Coincident", 13, 1, 14, 1),
    Sketcher.Constraint("Coincident", 14, 2, 15, 1),
    Sketcher.Constraint("Coincident", 15, 2, 16, 1),
    Sketcher.Constraint("Coincident", 16, 2, 17, 1),
    Sketcher.Constraint("Coincident", 17, 2, 18, 1),
    Sketcher.Constraint("Coincident", 18, 2, 19, 1),
    Sketcher.Constraint("Coincident", 19, 2, 20, 2),
    Sketcher.Constraint("Tangent", 20, 1, 21, 1),
    Sketcher.Constraint("Tangent", 21, 2, 22, 2),
    Sketcher.Constraint("Coincident", 22, 1, 23, 1),
    Sketcher.Constraint("Coincident", 23, 2, 24, 1),
    Sketcher.Constraint("Coincident", 24, 2, 25, 1),
    Sketcher.Constraint("Coincident", 25, 2, 26, 1),
    Sketcher.Constraint("Coincident", 26, 2, 27, 1),
    Sketcher.Constraint("Coincident", 27, 2, 28, 1),
    Sketcher.Constraint("Coincident", 28, 2, 29, 2),
    Sketcher.Constraint("Tangent", 29, 1, 30, 1),
    Sketcher.Constraint("Tangent", 30, 2, 31, 2),
    Sketcher.Constraint("Coincident", 31, 1, 32, 1),
    Sketcher.Constraint("Coincident", 32, 2, 33, 1),
    Sketcher.Constraint("Coincident", 33, 2, 34, 1),
    Sketcher.Constraint("Coincident", 34, 2, 35, 1),
    Sketcher.Constraint("Coincident", 35, 2, 0, 1),
    Sketcher.Constraint("Vertical", 0),
    Sketcher.Constraint("Horizontal", 1),
    Sketcher.Constraint("Horizontal", 3),
    Sketcher.Constraint("Horizontal", 5),
    Sketcher.Constraint("Vertical", 6),
    Sketcher.Constraint("Horizontal", 7),
    Sketcher.Constraint("Vertical", 8),
    Sketcher.Constraint("Horizontal", 9),
    Sketcher.Constraint("Vertical", 10),
    Sketcher.Constraint("Vertical", 12),
    Sketcher.Constraint("Vertical", 14),
    Sketcher.Constraint("Horizontal", 15),
    Sketcher.Constraint("Vertical", 16),
    Sketcher.Constraint("Horizontal", 17),
    Sketcher.Constraint("Vertical", 18),
    Sketcher.Constraint("Horizontal", 19),
    Sketcher.Constraint("Horizontal", 21),
    Sketcher.Constraint("Horizontal", 23),
    Sketcher.Constraint("Vertical", 24),
    Sketcher.Constraint("Horizontal", 25),
    Sketcher.Constraint("Vertical", 26),
    Sketcher.Constraint("Horizontal", 27),
    Sketcher.Constraint("Vertical", 28),
    Sketcher.Constraint("Vertical", 30),
    Sketcher.Constraint("Vertical", 32),
    Sketcher.Constraint("Horizontal", 33),
    Sketcher.Constraint("Vertical", 34),
    Sketcher.Constraint("Horizontal", 35),
    Sketcher.Constraint("Equal", 2, 4),
    Sketcher.Constraint("Equal", 4, 11),
    Sketcher.Constraint("Equal", 11, 13),
    Sketcher.Constraint("Equal", 13, 20),
    Sketcher.Constraint("Equal", 20, 22),
    Sketcher.Constraint("Equal", 22, 29),
    Sketcher.Constraint("Equal", 29, 31),
    Sketcher.Constraint("Horizontal", 13, 3, 29, 3),
    Sketcher.Constraint("Horizontal", 11, 3, 31, 3),
    Sketcher.Constraint("Horizontal", 1, 2, 4, 1),
    Sketcher.Constraint("Horizontal", 19, 2, 22, 1),
    Sketcher.Constraint("Horizontal", 17, 2, 24, 2),
    Sketcher.Constraint("Horizontal", 15, 2, 26, 2),
    Sketcher.Constraint("Horizontal", 13, 1, 28, 2),
    Sketcher.Constraint("Horizontal", 10, 2, 31, 1),
    Sketcher.Constraint("Horizontal", 9, 2, 32, 2),
    Sketcher.Constraint("Horizontal", 7, 2, 34, 2),
    Sketcher.Constraint("Vertical", 4, 3, 20, 3),
    Sketcher.Constraint("Vertical", 2, 3, 22, 3),
    Sketcher.Constraint("Vertical", 10, 2, 13, 1),
    Sketcher.Constraint("Vertical", 8, 2, 15, 2),
    Sketcher.Constraint("Vertical", 6, 2, 17, 2),
    Sketcher.Constraint("Vertical", 4, 1, 19, 2),
    Sketcher.Constraint("Vertical", 0, 2, 23, 2),
    Sketcher.Constraint("Vertical", 26, 2, 33, 2),
    Sketcher.Constraint("Equal", 1, 5),
    Sketcher.Constraint("Equal", 17, 25),
    Sketcher.Constraint("Equal", 15, 27),
    Sketcher.Constraint("Equal", 33, 0),
    Sketcher.Constraint("Equal", 35, 8),
    Sketcher.Constraint("Equal", 23, 10),
    Sketcher.Constraint("Equal", 21, 12),
    Sketcher.Constraint("Equal", 10, 14),
    Sketcher.Constraint("Equal", 8, 16),
    Sketcher.Constraint("Equal", 6, 18),
    Sketcher.Constraint("Diameter", 36, Q("6 mm")),
    Sketcher.Constraint("DistanceX", 7, 2, 7, 1, Q("7 mm")),
    Sketcher.Constraint("DistanceX", 9, 1, 9, 2, Q("2 mm")),
    Sketcher.Constraint("DistanceX", 36, 3, 0, 2, Q("3 mm")),
    Sketcher.Constraint("DistanceY", 36, 3, 0, 2, Q("8 mm")),
    Sketcher.Constraint("DistanceY", 36, 3, 2, 1, Q("4 mm")),
    Sketcher.Constraint("DistanceX", 11, 1, 36, 3, Q("4 mm")),
    Sketcher.Constraint("DistanceX", 9, 2, 11, 1, Q("4 mm")),
    Sketcher.Constraint("DistanceX", -1, 1, 36, 3, Q("0.5 mm")),
    Sketcher.Constraint("DistanceY", -1, 1, 36, 3, Q("0.3 mm")),
    Sketcher.Constraint("Radius", 2, Q("3.973254 mm")),
    Sketcher.Constraint("DistanceX", 1, 2, 31, 3, Q("2.786002 mm")),
])
sketch4.setExpression("Constraints[99]", "Params.sketch4_diameter")
sketch4.setExpression("Constraints[100]", "Params.sketch4_width")
sketch4.setExpression("Constraints[101]", "Params.sketch4_width2")
pad4 = body4.newObject("PartDesign::Pad", "Pad003")
pad4.Profile = sketch4
pad4.setExpression("Length", "Params.pad4_length")

doc.recompute()
